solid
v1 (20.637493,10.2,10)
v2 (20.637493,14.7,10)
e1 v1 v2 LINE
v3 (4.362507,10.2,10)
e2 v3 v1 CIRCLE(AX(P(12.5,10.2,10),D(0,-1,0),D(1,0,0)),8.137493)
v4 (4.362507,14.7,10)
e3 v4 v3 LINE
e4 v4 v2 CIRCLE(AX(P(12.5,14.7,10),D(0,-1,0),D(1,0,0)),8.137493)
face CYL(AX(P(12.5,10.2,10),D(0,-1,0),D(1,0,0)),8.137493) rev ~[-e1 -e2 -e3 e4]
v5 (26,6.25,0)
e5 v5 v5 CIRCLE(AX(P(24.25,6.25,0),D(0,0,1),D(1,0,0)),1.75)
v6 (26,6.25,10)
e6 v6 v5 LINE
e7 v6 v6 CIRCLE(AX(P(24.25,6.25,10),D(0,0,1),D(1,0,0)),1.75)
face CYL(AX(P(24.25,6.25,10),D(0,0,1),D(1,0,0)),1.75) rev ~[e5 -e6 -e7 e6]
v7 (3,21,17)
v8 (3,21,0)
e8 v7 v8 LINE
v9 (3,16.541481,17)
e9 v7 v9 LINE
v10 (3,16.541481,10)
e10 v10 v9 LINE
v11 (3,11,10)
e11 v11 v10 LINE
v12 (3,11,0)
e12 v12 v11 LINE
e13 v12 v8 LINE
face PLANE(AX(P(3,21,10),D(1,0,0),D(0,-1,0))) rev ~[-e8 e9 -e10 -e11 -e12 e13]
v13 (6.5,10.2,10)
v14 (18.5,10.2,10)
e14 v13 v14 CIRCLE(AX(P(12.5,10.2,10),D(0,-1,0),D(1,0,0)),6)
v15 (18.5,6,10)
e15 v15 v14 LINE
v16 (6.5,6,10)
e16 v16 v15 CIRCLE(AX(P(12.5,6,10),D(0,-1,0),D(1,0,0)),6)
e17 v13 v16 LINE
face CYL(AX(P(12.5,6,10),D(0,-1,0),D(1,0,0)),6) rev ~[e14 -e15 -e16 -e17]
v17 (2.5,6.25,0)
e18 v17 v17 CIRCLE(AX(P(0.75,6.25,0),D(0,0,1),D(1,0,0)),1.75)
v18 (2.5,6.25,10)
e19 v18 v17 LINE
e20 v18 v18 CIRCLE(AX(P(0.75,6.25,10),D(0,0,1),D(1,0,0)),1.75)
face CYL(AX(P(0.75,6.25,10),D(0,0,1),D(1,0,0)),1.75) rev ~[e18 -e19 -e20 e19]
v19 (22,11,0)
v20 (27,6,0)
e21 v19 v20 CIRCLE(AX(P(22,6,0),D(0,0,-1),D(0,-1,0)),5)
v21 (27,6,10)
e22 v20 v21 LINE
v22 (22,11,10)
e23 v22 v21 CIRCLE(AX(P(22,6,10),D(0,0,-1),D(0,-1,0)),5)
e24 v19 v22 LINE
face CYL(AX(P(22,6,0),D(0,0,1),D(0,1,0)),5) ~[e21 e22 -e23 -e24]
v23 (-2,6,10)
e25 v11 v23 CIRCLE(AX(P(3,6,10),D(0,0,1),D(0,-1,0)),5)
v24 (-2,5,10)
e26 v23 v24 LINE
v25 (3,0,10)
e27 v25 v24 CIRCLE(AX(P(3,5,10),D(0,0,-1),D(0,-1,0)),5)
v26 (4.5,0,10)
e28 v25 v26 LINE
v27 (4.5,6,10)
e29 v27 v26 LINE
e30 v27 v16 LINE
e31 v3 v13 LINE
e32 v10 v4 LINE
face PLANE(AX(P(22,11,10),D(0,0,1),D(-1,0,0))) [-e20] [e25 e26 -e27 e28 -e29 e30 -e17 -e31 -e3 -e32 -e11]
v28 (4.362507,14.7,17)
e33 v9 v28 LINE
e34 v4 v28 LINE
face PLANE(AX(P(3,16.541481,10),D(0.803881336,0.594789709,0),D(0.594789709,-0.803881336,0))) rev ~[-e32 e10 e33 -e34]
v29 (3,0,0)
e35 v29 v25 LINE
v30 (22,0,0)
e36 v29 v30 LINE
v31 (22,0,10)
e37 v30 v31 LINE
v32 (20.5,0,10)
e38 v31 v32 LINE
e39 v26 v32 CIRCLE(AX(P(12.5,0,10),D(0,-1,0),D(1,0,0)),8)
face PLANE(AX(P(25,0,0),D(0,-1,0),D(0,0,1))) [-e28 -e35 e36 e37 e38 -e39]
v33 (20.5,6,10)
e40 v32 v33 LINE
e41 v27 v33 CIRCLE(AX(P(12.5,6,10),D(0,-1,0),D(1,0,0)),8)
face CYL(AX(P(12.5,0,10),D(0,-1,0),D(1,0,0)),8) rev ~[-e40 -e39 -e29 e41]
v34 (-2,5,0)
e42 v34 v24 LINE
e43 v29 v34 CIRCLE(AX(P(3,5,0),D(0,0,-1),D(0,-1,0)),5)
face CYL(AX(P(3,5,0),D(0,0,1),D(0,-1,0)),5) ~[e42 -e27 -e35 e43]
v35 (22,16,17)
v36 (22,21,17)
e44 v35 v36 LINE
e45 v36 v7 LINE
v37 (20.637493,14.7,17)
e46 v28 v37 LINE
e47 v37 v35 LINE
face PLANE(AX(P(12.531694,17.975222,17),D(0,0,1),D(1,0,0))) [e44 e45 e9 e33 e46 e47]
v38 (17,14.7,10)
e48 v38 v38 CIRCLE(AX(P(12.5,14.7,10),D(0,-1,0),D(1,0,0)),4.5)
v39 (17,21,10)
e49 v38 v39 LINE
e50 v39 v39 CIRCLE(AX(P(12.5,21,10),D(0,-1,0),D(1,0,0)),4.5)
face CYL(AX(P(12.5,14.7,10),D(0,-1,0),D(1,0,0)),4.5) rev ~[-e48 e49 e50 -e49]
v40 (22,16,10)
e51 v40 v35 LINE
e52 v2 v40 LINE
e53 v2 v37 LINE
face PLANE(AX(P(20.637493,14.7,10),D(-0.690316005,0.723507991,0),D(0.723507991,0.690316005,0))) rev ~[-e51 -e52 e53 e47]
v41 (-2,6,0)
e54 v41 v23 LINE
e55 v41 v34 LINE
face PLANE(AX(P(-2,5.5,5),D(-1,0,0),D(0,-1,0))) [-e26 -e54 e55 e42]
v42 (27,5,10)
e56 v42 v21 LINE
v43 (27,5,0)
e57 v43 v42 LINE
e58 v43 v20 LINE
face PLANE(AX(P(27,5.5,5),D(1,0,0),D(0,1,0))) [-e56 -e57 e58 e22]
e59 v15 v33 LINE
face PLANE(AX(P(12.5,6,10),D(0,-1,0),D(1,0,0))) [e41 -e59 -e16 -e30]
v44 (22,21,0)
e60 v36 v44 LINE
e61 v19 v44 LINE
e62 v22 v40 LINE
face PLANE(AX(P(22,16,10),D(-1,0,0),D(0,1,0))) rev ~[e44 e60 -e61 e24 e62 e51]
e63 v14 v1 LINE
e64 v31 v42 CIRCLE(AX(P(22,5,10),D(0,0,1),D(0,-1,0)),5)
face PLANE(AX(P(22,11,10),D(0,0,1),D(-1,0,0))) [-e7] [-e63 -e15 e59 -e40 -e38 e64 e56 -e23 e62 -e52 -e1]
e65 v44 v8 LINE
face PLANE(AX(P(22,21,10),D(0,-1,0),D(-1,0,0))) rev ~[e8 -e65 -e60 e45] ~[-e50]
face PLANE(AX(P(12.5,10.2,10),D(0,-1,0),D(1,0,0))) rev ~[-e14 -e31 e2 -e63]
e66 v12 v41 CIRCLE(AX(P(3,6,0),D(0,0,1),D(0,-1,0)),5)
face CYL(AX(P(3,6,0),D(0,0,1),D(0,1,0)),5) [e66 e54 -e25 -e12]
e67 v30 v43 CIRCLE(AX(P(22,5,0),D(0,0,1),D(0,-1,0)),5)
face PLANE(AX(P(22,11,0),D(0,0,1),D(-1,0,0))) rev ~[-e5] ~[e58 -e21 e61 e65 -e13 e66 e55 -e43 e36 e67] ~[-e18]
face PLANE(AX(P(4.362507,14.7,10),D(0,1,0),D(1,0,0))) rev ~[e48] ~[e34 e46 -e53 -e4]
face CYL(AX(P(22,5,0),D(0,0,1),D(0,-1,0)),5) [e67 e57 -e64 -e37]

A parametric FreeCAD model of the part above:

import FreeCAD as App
import Part
import Sketcher

V = App.Vector
Q = App.Units.Quantity


def edges_at(feature, points):
    """Names of the edges that pass closest to the given points."""
    edges = feature.Shape.Edges
    near = lambda p: min(range(len(edges)), key=lambda i: edges[i].distToShape(Part.Vertex(*p))[0])
    return sorted({f"Edge{near(p) + 1}" for p in points})

doc = App.newDocument("Part")
body = doc.addObject("PartDesign::Body", "Body")

sketch1 = doc.addObject("Sketcher::SketchObject", "Sketch")
body.addObject(sketch1)
sketch1.AttachmentSupport = (doc.XY_Plane, [""])
sketch1.MapMode = "FlatFace"
sketch1.addGeometry([
    Part.LineSegment(V(0, 11, 0), V(0, 0, 0)),
    Part.LineSegment(V(0, 0, 0), V(25, 0, 0)),
    Part.LineSegment(V(25, 0, 0), V(25, 11, 0)),
    Part.LineSegment(V(25, 11, 0), V(0, 11, 0)),
], False)
sketch1.addConstraint([
    Sketcher.Constraint("Coincident", 0, 2, 1, 1),
    Sketcher.Constraint("Coincident", 1, 2, 2, 1),
    Sketcher.Constraint("Coincident", 2, 2, 3, 1),
    Sketcher.Constraint("Coincident", 3, 2, 0, 1),
    Sketcher.Constraint("Vertical", 0),
    Sketcher.Constraint("Horizontal", 1),
    Sketcher.Constraint("Vertical", 2),
    Sketcher.Constraint("Horizontal", 3),
    Sketcher.Constraint("Coincident", 0, 2, -1, 1),
    Sketcher.Constraint("DistanceX", 1, 1, 1, 2, Q("25 mm")),
    Sketcher.Constraint("DistanceY", 0, 2, 0, 1, Q("11 mm")),
])
pad1 = doc.addObject("PartDesign::Pad", "Pad")
body.addObject(pad1)
pad1.Profile = sketch1
pad1.Length = 10

sketch2 = doc.addObject("Sketcher::SketchObject", "Sketch001")
body.addObject(sketch2)
sketch2.AttachmentSupport = (doc.XZ_Plane, [""])
sketch2.MapMode = "FlatFace"
sketch2.addGeometry(Part.Circle(V(12, 10, 0), V(0, 0, 1), 8), False)
sketch2.addConstraint([
    Sketcher.Constraint("Diameter", 0, Q("16 mm")),
    Sketcher.Constraint("DistanceY", -1, 1, 0, 3, Q("10 mm")),
    Sketcher.Constraint("DistanceX", -1, 1, 0, 3, Q("12.5 mm")),
])
pocket1 = doc.addObject("PartDesign::Pocket", "Pocket")
body.addObject(pocket1)
pocket1.Profile = sketch2
pocket1.Length = 6

sketch3 = doc.addObject("Sketcher::SketchObject", "Sketch002")
body.addObject(sketch3)
sketch3.AttachmentSupport = (doc.XZ_Plane, [""])
sketch3.MapMode = "FlatFace"
sketch3.AttachmentOffset = App.Placement(V(0, 0, -6), App.Rotation())
sketch3.addGeometry(Part.Circle(V(12, 10, 0), V(0, 0, 1), 6), False)
sketch3.addConstraint([
    Sketcher.Constraint("Diameter", 0, Q("12 mm")),
    Sketcher.Constraint("DistanceY", -1, 1, 0, 3, Q("10 mm")),
    Sketcher.Constraint("DistanceX", -1, 1, 0, 3, Q("12.5 mm")),
])
pocket2 = doc.addObject("PartDesign::Pocket", "Pocket001")
body.addObject(pocket2)
pocket2.Profile = sketch3
pocket2.Length = 4.2

sketch4 = doc.addObject("Sketcher::SketchObject", "Sketch003")
body.addObject(sketch4)
sketch4.AttachmentSupport = (doc.YZ_Plane, [""])
sketch4.MapMode = "FlatFace"
sketch4.addGeometry([
    Part.LineSegment(V(11, 10, 0), V(11, 0, 0)),
    Part.LineSegment(V(11, 0, 0), V(0, 0, 0)),
    Part.LineSegment(V(0, 0, 0), V(0, 10, 0)),
    Part.LineSegment(V(0, 10, 0), V(11, 10, 0)),
], False)
sketch4.addConstraint([
    Sketcher.Constraint("Coincident", 0, 2, 1, 1),
    Sketcher.Constraint("Coincident", 1, 2, 2, 1),
    Sketcher.Constraint("Coincident", 2, 2, 3, 1),
    Sketcher.Constraint("Coincident", 3, 2, 0, 1),
    Sketcher.Constraint("Vertical", 0),
    Sketcher.Constraint("Horizontal", 1),
    Sketcher.Constraint("Vertical", 2),
    Sketcher.Constraint("Horizontal", 3),
    Sketcher.Constraint("Coincident", 1, 2, -1, 1),
    Sketcher.Constraint("DistanceX", 1, 2, 1, 1, Q("11 mm")),
    Sketcher.Constraint("DistanceY", 0, 2, 0, 1, Q("10 mm")),
])
pad2 = doc.addObject("PartDesign::Pad", "Pad001")
body.addObject(pad2)
pad2.Profile = sketch4
pad2.Length = 2
pad2.Reversed = True

sketch5 = doc.addObject("Sketcher::SketchObject", "Sketch004")
body.addObject(sketch5)
sketch5.AttachmentSupport = (doc.YZ_Plane, [""])
sketch5.MapMode = "FlatFace"
sketch5.AttachmentOffset = App.Placement(V(0, 0, 25), App.Rotation())
sketch5.addGeometry([
    Part.LineSegment(V(0, 10, 0), V(0, 0, 0)),
    Part.LineSegment(V(0, 0, 0), V(11, 0, 0)),
    Part.LineSegment(V(11, 0, 0), V(11, 10, 0)),
    Part.LineSegment(V(11, 10, 0), V(0, 10, 0)),
], False)
sketch5.addConstraint([
    Sketcher.Constraint("Coincident", 0, 2, 1, 1),
    Sketcher.Constraint("Coincident", 1, 2, 2, 1),
    Sketcher.Constraint("Coincident", 2, 2, 3, 1),
    Sketcher.Constraint("Coincident", 3, 2, 0, 1),
    Sketcher.Constraint("Vertical", 0),
    Sketcher.Constraint("Horizontal", 1),
    Sketcher.Constraint("Vertical", 2),
    Sketcher.Constraint("Horizontal", 3),
    Sketcher.Constraint("Coincident", 0, 2, -1, 1),
    Sketcher.Constraint("DistanceX", 1, 1, 1, 2, Q("11 mm")),
    Sketcher.Constraint("DistanceY", 0, 2, 0, 1, Q("10 mm")),
])
pad3 = doc.addObject("PartDesign::Pad", "Pad002")
body.addObject(pad3)
pad3.Profile = sketch5
pad3.Length = 2
doc.recompute()

fillet = doc.addObject("PartDesign::Fillet", "Fillet")
body.addObject(fillet)
fillet.Base = (pad3, edges_at(pad3, [
    (27, 11, 5),
    (27, 0, 5),
    (-2, 11, 5),
    (-2, 0, 5),
]))
fillet.Radius = 5

sketch6 = doc.addObject("Sketcher::SketchObject", "Sketch005")
body.addObject(sketch6)
sketch6.AttachmentSupport = (doc.XY_Plane, [""])
sketch6.MapMode = "FlatFace"
sketch6.AttachmentOffset = App.Placement(V(0, 0, 10), App.Rotation())
sketch6.addGeometry([
    Part.Circle(V(0.8, 6.2, 0), V(0, 0, 1), 1.8),
    Part.Circle(V(24.2, 6.2, 0), V(0, 0, 1), 1.8),
], False)
sketch6.addConstraint([
    Sketcher.Constraint("Equal", 0, 1),
    Sketcher.Constraint("Horizontal", 0, 3, 1, 3),
    Sketcher.Constraint("Diameter", 0, Q("3.5 mm")),
    Sketcher.Constraint("DistanceX", 0, 3, 1, 3, Q("23.5 mm")),
    Sketcher.Constraint("DistanceX", -1, 1, 0, 3, Q("0.75 mm")),
    Sketcher.Constraint("DistanceY", -1, 1, 0, 3, Q("6.25 mm")),
])
pocket3 = doc.addObject("PartDesign::Pocket", "Pocket002")
body.addObject(pocket3)
pocket3.Profile = sketch6
pocket3.Length = 25

sketch7 = doc.addObject("Sketcher::SketchObject", "Sketch006")
body.addObject(sketch7)
sketch7.AttachmentSupport = (doc.XZ_Plane, [""])
sketch7.MapMode = "FlatFace"
sketch7.AttachmentOffset = App.Placement(V(0, 0, -11), App.Rotation())
sketch7.addGeometry([
    Part.LineSegment(V(22, 10, 0), V(22, 0, 0)),
    Part.LineSegment(V(22, 0, 0), V(3, 0, 0)),
    Part.LineSegment(V(3, 0, 0), V(3, 10, 0)),
    Part.LineSegment(V(3, 10, 0), V(22, 10, 0)),
], False)
sketch7.addConstraint([
    Sketcher.Constraint("Coincident", 0, 2, 1, 1),
    Sketcher.Constraint("Coincident", 1, 2, 2, 1),
    Sketcher.Constraint("Coincident", 2, 2, 3, 1),
    Sketcher.Constraint("Coincident", 3, 2, 0, 1),
    Sketcher.Constraint("Vertical", 0),
    Sketcher.Constraint("Horizontal", 1),
    Sketcher.Constraint("Vertical", 2),
    Sketcher.Constraint("Horizontal", 3),
    Sketcher.Constraint("PointOnObject", 0, 2, -1),
    Sketcher.Constraint("DistanceX", 1, 2, 1, 1, Q("19 mm")),
    Sketcher.Constraint("DistanceY", 0, 2, 0, 1, Q("10 mm")),
    Sketcher.Constraint("DistanceX", -1, 1, 0, 2, Q("22 mm")),
])
pad4 = doc.addObject("PartDesign::Pad", "Pad003")
body.addObject(pad4)
pad4.Profile = sketch7
pad4.Length = 10
pad4.Reversed = True

sketch8 = doc.addObject("Sketcher::SketchObject", "Sketch007")
body.addObject(sketch8)
sketch8.AttachmentSupport = (doc.XZ_Plane, [""])
sketch8.MapMode = "FlatFace"
sketch8.AttachmentOffset = App.Placement(V(0, 0, -10.2), App.Rotation())
sketch8.addGeometry(Part.Circle(V(12, 10, 0), V(0, 0, 1), 8), False)
sketch8.addConstraint([
    Sketcher.Constraint("DistanceY", -1, 1, 0, 3, Q("10 mm")),
    Sketcher.Constraint("DistanceX", -1, 1, 0, 3, Q("12.5 mm")),
    Sketcher.Constraint("Diameter", 0, Q("16.274986 mm")),
])
pocket4 = doc.addObject("PartDesign::Pocket", "Pocket003")
body.addObject(pocket4)
pocket4.Profile = sketch8
pocket4.Length = 4.5

sketch9 = doc.addObject("Sketcher::SketchObject", "Sketch008")
body.addObject(sketch9)
sketch9.AttachmentSupport = (doc.XY_Plane, [""])
sketch9.MapMode = "FlatFace"
sketch9.AttachmentOffset = App.Placement(V(0, 0, 10), App.Rotation())
sketch9.addGeometry([
    Part.LineSegment(V(3, 16.5, 0), V(4.4, 14.7, 0)),
    Part.LineSegment(V(4.4, 14.7, 0), V(20.6, 14.7, 0)),
    Part.LineSegment(V(20.6, 14.7, 0), V(22, 16, 0)),
    Part.LineSegment(V(22, 16, 0), V(22, 21, 0)),
    Part.LineSegment(V(22, 21, 0), V(3, 21, 0)),
    Part.LineSegment(V(3, 21, 0), V(3, 16.5, 0)),
], False)
sketch9.addConstraint([
    Sketcher.Constraint("Coincident", 0, 2, 1, 1),
    Sketcher.Constraint("Coincident", 1, 2, 2, 1),
    Sketcher.Constraint("Coincident", 2, 2, 3, 1),
    Sketcher.Constraint("Coincident", 3, 2, 4, 1),
    Sketcher.Constraint("Coincident", 4, 2, 5, 1),
    Sketcher.Constraint("Coincident", 5, 2, 0, 1),
    Sketcher.Constraint("Horizontal", 1),
    Sketcher.Constraint("Vertical", 3),
    Sketcher.Constraint("Horizontal", 4),
    Sketcher.Constraint("Vertical", 5),
    Sketcher.Constraint("DistanceX", 4, 2, 4, 1, Q("19 mm")),
    Sketcher.Constraint("DistanceY", 3, 1, 3, 2, Q("5 mm")),
    Sketcher.Constraint("DistanceX", -1, 1, 2, 2, Q("22 mm")),
    Sketcher.Constraint("DistanceY", -1, 1, 2, 2, Q("16 mm")),
    Sketcher.Constraint("DistanceY", -1, 1, 0, 2, Q("14.7 mm")),
    Sketcher.Constraint("DistanceY", 5, 2, 5, 1, Q("4.458519 mm")),
    Sketcher.Constraint("DistanceX", 1, 1, 1, 2, Q("16.274986 mm")),
    Sketcher.Constraint("Distance", 0, Q("2.290737 mm")),
])
pad5 = doc.addObject("PartDesign::Pad", "Pad004")
body.addObject(pad5)
pad5.Profile = sketch9
pad5.Length = 7

sketch10 = doc.addObject("Sketcher::SketchObject", "Sketch009")
body.addObject(sketch10)
sketch10.AttachmentSupport = (doc.XZ_Plane, [""])
sketch10.MapMode = "FlatFace"
sketch10.AttachmentOffset = App.Placement(V(0, 0, -14.7), App.Rotation())
sketch10.addGeometry(Part.Circle(V(12.5, 10, 0), V(0, 0, 1), 4.5), False)
sketch10.addConstraint([
    Sketcher.Constraint("Diameter", 0, Q("9 mm")),
    Sketcher.Constraint("DistanceY", -1, 1, 0, 3, Q("10 mm")),
    Sketcher.Constraint("DistanceX", -1, 1, 0, 3, Q("12.5 mm")),
])
pocket5 = doc.addObject("PartDesign::Pocket", "Pocket004")
body.addObject(pocket5)
pocket5.Profile = sketch10
pocket5.Length = 25

doc.recompute()
